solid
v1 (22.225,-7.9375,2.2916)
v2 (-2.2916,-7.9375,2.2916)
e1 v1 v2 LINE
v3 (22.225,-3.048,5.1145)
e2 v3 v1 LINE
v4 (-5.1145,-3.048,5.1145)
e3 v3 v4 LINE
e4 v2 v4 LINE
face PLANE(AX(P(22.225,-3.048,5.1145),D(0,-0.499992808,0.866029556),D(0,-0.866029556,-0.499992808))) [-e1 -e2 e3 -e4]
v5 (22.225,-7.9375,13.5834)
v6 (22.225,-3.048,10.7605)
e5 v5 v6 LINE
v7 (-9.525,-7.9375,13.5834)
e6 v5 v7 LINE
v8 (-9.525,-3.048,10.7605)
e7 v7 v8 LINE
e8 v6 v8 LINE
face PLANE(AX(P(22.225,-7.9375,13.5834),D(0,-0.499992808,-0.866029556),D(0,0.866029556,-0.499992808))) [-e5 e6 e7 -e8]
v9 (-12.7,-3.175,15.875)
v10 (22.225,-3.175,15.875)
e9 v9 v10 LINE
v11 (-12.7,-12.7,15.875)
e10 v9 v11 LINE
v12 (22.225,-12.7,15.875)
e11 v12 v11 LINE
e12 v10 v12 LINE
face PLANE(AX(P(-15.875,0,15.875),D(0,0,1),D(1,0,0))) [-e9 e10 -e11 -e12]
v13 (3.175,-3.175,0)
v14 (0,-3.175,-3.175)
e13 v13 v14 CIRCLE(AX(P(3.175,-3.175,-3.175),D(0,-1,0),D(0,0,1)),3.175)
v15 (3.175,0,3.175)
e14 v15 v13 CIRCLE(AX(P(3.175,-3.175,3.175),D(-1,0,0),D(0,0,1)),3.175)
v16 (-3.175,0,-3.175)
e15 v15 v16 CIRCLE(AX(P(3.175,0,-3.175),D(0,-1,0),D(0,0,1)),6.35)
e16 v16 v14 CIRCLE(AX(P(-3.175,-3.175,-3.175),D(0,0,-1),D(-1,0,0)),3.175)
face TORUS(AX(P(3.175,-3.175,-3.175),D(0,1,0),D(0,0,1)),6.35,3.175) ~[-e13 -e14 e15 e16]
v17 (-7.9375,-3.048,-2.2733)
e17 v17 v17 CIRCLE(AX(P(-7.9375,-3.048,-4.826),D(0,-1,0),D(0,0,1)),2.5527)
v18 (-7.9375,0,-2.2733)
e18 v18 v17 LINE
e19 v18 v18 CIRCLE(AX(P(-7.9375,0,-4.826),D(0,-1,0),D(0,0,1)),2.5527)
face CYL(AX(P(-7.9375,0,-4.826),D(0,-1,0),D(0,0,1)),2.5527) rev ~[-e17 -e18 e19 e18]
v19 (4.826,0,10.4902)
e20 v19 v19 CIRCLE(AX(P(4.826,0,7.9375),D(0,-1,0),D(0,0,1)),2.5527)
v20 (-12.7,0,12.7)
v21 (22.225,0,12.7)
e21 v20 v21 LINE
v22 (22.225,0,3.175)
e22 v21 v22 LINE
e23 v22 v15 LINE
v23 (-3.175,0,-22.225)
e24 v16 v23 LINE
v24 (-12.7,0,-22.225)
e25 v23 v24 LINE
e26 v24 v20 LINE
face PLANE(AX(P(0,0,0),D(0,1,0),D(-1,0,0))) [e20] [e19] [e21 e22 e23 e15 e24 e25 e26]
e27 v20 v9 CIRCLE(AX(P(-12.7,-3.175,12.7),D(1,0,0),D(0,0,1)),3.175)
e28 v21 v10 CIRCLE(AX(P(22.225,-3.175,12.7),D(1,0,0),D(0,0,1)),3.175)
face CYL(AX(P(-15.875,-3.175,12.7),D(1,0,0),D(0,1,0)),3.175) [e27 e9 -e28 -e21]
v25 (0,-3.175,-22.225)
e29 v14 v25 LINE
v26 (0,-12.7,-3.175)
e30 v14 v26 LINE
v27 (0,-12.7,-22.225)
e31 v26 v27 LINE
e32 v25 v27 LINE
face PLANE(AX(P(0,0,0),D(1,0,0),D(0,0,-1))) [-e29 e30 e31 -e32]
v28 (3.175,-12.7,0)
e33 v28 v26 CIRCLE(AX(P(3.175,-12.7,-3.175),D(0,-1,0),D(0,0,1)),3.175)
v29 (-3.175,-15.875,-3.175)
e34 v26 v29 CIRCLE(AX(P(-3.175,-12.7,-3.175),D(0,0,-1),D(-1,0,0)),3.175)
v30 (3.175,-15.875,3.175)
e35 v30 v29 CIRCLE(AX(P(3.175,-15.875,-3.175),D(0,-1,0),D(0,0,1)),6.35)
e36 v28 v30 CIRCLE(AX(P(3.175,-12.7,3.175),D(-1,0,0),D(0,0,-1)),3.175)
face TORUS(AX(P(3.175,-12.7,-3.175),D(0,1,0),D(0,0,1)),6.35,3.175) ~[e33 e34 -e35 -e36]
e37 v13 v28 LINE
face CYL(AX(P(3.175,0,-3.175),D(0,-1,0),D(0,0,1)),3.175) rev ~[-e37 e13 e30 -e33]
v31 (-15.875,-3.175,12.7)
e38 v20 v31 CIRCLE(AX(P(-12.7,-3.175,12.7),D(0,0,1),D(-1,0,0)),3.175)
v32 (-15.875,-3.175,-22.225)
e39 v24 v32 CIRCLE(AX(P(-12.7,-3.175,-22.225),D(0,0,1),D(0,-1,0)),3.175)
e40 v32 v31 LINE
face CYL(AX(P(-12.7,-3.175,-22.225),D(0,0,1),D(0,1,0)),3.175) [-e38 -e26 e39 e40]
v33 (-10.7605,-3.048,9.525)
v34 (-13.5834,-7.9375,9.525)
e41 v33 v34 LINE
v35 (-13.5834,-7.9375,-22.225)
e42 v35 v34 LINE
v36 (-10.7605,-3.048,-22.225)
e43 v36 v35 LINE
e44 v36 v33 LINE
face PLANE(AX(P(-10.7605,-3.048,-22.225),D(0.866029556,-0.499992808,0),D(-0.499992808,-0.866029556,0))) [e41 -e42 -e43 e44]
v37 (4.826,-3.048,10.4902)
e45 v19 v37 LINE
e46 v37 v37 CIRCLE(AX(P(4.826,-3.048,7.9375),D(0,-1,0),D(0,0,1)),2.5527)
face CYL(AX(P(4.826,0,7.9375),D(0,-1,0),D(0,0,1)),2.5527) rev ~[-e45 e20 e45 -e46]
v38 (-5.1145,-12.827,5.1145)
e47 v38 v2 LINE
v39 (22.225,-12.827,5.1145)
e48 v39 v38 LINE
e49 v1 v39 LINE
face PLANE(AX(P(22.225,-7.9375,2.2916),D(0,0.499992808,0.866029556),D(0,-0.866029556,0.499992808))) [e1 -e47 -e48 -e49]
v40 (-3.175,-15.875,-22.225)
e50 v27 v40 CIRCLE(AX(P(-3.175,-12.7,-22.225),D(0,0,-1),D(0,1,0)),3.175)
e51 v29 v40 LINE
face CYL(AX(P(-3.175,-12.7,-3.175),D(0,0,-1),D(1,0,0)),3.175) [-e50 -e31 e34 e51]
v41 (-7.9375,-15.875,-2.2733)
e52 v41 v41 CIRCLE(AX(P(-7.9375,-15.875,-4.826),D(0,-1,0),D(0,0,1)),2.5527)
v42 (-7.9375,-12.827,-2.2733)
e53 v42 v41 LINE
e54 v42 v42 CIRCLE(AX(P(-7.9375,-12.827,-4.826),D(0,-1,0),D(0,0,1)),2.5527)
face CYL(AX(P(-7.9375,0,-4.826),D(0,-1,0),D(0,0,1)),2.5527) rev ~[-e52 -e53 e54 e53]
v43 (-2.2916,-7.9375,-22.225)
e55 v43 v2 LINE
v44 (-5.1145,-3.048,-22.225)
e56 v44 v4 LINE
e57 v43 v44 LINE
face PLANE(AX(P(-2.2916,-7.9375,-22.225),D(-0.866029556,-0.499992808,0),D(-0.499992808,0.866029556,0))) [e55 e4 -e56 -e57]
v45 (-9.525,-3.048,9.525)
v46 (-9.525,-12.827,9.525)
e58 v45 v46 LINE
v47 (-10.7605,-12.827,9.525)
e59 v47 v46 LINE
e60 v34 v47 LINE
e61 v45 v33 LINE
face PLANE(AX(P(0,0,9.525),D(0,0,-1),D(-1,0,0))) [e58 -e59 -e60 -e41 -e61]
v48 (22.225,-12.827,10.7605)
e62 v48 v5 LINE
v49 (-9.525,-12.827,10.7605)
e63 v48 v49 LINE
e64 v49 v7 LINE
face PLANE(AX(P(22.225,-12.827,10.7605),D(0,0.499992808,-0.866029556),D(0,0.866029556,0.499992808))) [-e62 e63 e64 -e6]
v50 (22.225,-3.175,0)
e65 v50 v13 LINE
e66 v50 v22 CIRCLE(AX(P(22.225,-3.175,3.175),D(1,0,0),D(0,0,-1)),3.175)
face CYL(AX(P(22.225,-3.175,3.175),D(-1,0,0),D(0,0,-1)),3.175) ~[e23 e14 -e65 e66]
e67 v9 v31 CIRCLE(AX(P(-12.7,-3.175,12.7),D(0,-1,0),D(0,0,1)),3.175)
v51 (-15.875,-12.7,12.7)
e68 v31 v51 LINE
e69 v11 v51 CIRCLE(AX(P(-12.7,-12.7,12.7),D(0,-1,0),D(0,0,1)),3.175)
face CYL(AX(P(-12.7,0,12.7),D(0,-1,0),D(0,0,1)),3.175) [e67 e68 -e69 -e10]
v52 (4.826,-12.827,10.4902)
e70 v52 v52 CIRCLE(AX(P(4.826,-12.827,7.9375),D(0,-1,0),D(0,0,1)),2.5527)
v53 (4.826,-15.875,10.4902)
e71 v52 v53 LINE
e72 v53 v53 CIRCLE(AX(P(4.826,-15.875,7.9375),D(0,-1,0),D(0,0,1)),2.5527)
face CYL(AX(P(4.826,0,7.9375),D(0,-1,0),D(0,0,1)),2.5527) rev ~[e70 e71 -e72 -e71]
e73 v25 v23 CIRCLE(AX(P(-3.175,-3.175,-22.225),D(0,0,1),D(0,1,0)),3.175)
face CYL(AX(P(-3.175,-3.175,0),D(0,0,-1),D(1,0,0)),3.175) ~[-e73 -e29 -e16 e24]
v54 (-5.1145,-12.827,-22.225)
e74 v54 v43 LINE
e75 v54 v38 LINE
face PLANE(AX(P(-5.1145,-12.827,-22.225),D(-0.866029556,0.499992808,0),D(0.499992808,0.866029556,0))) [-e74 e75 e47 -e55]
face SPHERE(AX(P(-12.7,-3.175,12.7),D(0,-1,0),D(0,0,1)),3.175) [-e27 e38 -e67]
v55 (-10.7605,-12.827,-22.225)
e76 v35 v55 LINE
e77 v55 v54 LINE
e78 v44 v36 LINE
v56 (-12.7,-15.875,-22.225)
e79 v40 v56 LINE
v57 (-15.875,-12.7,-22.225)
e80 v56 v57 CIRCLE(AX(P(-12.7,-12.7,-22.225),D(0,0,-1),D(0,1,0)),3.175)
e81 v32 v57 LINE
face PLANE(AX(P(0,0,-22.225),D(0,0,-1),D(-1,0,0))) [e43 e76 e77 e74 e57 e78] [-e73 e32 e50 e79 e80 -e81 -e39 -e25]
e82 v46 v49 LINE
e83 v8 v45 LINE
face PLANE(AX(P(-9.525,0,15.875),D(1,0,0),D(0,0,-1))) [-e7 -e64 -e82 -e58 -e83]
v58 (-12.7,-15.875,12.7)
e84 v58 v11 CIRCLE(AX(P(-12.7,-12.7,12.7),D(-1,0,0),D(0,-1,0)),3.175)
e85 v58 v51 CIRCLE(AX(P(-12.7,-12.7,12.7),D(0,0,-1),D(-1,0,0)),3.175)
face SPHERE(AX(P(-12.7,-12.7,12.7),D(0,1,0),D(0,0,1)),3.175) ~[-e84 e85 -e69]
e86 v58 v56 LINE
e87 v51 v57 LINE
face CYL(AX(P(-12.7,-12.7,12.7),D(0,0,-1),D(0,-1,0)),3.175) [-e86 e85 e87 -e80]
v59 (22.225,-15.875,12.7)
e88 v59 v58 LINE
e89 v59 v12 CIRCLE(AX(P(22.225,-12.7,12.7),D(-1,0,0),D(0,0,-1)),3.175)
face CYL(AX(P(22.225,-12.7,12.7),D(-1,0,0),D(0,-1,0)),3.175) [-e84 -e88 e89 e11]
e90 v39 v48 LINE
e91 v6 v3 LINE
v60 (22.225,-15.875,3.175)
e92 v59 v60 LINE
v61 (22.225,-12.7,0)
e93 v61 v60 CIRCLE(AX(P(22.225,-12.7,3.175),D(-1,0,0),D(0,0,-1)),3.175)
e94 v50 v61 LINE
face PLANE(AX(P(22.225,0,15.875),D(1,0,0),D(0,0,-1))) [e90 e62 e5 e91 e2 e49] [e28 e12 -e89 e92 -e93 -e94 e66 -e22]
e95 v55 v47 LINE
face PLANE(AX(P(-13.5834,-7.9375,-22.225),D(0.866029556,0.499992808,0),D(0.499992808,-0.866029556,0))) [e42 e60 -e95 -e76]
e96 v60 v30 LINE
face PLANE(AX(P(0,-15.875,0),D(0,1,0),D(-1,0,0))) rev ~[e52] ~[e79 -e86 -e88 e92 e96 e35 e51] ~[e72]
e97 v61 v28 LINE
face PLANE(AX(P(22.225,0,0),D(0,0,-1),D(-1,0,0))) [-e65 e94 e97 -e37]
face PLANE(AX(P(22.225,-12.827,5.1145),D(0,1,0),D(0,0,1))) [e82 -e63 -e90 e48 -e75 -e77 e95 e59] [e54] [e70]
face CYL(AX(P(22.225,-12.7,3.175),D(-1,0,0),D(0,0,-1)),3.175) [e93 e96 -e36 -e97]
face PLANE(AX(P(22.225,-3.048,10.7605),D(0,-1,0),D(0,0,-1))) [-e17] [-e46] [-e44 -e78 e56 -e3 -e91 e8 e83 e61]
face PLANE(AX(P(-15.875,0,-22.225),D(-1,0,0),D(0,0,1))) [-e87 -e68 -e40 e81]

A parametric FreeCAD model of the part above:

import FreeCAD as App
import Part
import Sketcher

V = App.Vector
Q = App.Units.Quantity


def edges_at(feature, points):
    """Names of the edges that pass closest to the given points."""
    edges = feature.Shape.Edges
    near = lambda p: min(range(len(edges)), key=lambda i: edges[i].distToShape(Part.Vertex(*p))[0])
    return sorted({f"Edge{near(p) + 1}" for p in points})


def add_polygon(sketch, points):
    """Adds a closed chain of lines whose ends are joined by coincident constraints."""
    first, n = sketch.GeometryCount, len(points)
    for a, b in zip(points, points[1:] + points[:1]):
        sketch.addGeometry(Part.LineSegment(App.Vector(*a, 0), App.Vector(*b, 0)), False)
    for i in range(n):
        sketch.addConstraint(Sketcher.Constraint("Coincident", first + i, 2, first + (i + 1) % n, 1))

doc = App.newDocument("Part")
body = doc.addObject("PartDesign::Body", "Body")

# Sketch on XZ plane
sketch1 = doc.addObject("Sketcher::SketchObject", "Sketch")
body.addObject(sketch1)
sketch1.AttachmentSupport = (doc.XZ_Plane, [""])
sketch1.MapMode = "FlatFace"
add_polygon(sketch1, [(22.225, 0), (0, 0), (0, -22.225), (-15.875, -22.225), (-15.875, 15.875), (22.225, 15.875)])  # lines 0-5
sketch1.addConstraint(Sketcher.Constraint("Horizontal", 0))
sketch1.addConstraint(Sketcher.Constraint("Vertical", 1))
sketch1.addConstraint(Sketcher.Constraint("Horizontal", 2))
sketch1.addConstraint(Sketcher.Constraint("Vertical", 3))
sketch1.addConstraint(Sketcher.Constraint("Horizontal", 4))
sketch1.addConstraint(Sketcher.Constraint("Vertical", 5))
sketch1.addConstraint(Sketcher.Constraint("Coincident", 0, 2, -1, 1))
sketch1.addConstraint(Sketcher.Constraint("Equal", 0, 1))
sketch1.addConstraint(Sketcher.Constraint("Equal", 4, 3))
sketch1.addConstraint(Sketcher.Constraint("DistanceX", 4, 1, 4, 2, Q("1.5 in")))
sketch1.addConstraint(Sketcher.Constraint("DistanceX", 2, 2, 2, 1, Q("0.625 in")))
pad1 = doc.addObject("PartDesign::Pad", "Pad")
body.addObject(pad1)
pad1.Profile = sketch1
pad1.Length = Q("0.625 in")

# Sketch on XY plane
sketch2 = doc.addObject("Sketcher::SketchObject", "Sketch001")
body.addObject(sketch2)
sketch2.AttachmentSupport = (doc.XY_Plane, [""])
sketch2.MapMode = "FlatFace"
sketch2.AttachmentOffset = App.Placement(V(0, 0, -0.875 * 25.4), App.Rotation())
add_polygon(sketch2, [(-10.7605, -3.048), (-5.1145, -3.048), (-2.2916, -7.9375), (-5.1145, -12.827), (-10.7605, -12.827), (-13.5834, -7.9375)])  # lines 0-5
sketch2.addConstraint(Sketcher.Constraint("Horizontal", 0))
sketch2.addConstraint(Sketcher.Constraint("Horizontal", 3))
sketch2.addConstraint(Sketcher.Constraint("Parallel", 1, 4))
sketch2.addConstraint(Sketcher.Constraint("Parallel", 2, 5))
sketch2.addConstraint(Sketcher.Constraint("Horizontal", 1, 2, 4, 2))
sketch2.addConstraint(Sketcher.Constraint("Vertical", 0, 2, 2, 2))
sketch2.addConstraint(Sketcher.Constraint("Vertical", 3, 2, 5, 2))
sketch2.addConstraint(Sketcher.Constraint("DistanceY", 1, 2, -1, 1, Q("0.3125 in")))
sketch2.addConstraint(Sketcher.Constraint("Angle", 1, Q("-60.0005 deg")))
sketch2.addConstraint(Sketcher.Constraint("DistanceY", 2, 2, 0, 2, Q("0.385 in")))
sketch2.addConstraint(Sketcher.Constraint("DistanceX", 0, 1, 0, 2, Q("5.646 mm")))
sketch2.addConstraint(Sketcher.Constraint("DistanceX", 0, 2, -1, 1, Q("5.1145 mm")))
pocket1 = doc.addObject("PartDesign::Pocket", "Pocket")
body.addObject(pocket1)
pocket1.Profile = sketch2
pocket1.Length = Q("1.25 in")
pocket1.Reversed = True

# Sketch on YZ plane
sketch3 = doc.addObject("Sketcher::SketchObject", "Sketch002")
body.addObject(sketch3)
sketch3.AttachmentSupport = (doc.YZ_Plane, [""])
sketch3.MapMode = "FlatFace"
sketch3.AttachmentOffset = App.Placement(V(0, 0, 0.875 * 25.4), App.Rotation())
add_polygon(sketch3, [(-12.827, 5.1145), (-7.9375, 2.2916), (-3.048, 5.1145), (-3.048, 10.7605), (-7.9375, 13.5834), (-12.827, 10.7605)])  # lines 0-5
sketch3.addConstraint(Sketcher.Constraint("Vertical", 2))
sketch3.addConstraint(Sketcher.Constraint("Vertical", 5))
sketch3.addConstraint(Sketcher.Constraint("Parallel", 0, 3))
sketch3.addConstraint(Sketcher.Constraint("Parallel", 1, 4))
sketch3.addConstraint(Sketcher.Constraint("Horizontal", 2, 2, 4, 2))
sketch3.addConstraint(Sketcher.Constraint("Horizontal", 1, 2, 5, 2))
sketch3.addConstraint(Sketcher.Constraint("Vertical", 0, 2, 3, 2))
sketch3.addConstraint(Sketcher.Constraint("DistanceX", 0, 2, -1, 1, Q("0.3125 in")))
sketch3.addConstraint(Sketcher.Constraint("Angle", 0, Q("-29.9995 deg")))
sketch3.addConstraint(Sketcher.Constraint("DistanceX", 4, 2, 2, 2, Q("0.385 in")))
sketch3.addConstraint(Sketcher.Constraint("DistanceY", 2, 1, 2, 2, Q("5.646 mm")))
sketch3.addConstraint(Sketcher.Constraint("DistanceY", -1, 1, 0, 2, Q("2.2916 mm")))
pocket2 = doc.addObject("PartDesign::Pocket", "Pocket001")
body.addObject(pocket2)
pocket2.Profile = sketch3
pocket2.Length = Q("1.25 in")

# Sketch on XZ plane
sketch4 = doc.addObject("Sketcher::SketchObject", "Sketch003")
body.addObject(sketch4)
sketch4.AttachmentSupport = (doc.XZ_Plane, [""])
sketch4.MapMode = "FlatFace"
sketch4.addGeometry(Part.Circle(V(-7.9375, -4.826, 0), V(0, 0, 1), 2.5527), False)
sketch4.addGeometry(Part.Circle(V(4.826, 7.9375, 0), V(0, 0, 1), 2.5527), False)
sketch4.addConstraint(Sketcher.Constraint("Equal", 0, 1))
sketch4.addConstraint(Sketcher.Constraint("Diameter", 0, Q("0.201 in")))
sketch4.addConstraint(Sketcher.Constraint("DistanceY", 0, 3, -1, 1, Q("0.19 in")))
sketch4.addConstraint(Sketcher.Constraint("DistanceX", -1, 1, 1, 3, Q("0.19 in")))
sketch4.addConstraint(Sketcher.Constraint("DistanceX", 0, 3, -1, 1, Q("0.3125 in")))
sketch4.addConstraint(Sketcher.Constraint("DistanceY", -1, 1, 1, 3, Q("0.3125 in")))
doc.recompute()
hole = doc.addObject("PartDesign::Hole", "Hole")
body.addObject(hole)
hole.Profile = sketch4
hole.ThreadType = "None"
hole.Diameter = Q("0.201 in")
hole.DepthType = "ThroughAll"
hole.Reversed = True
doc.recompute()

fillet = doc.addObject("PartDesign::Fillet", "Fillet")
body.addObject(fillet)
fillet.Base = (hole, edges_at(hole, [
    (-15.875, -7.938, 15.875),
    (0, -7.938, 0),
    (11.113, 0, 0),
    (0, 0, -11.113),
    (3.175, 0, 15.875),
    (-15.875, 0, -3.175),
]))
fillet.Radius = Q("0.125 in")
doc.recompute()

fillet2 = doc.addObject("PartDesign::Fillet", "Fillet001")
body.addObject(fillet2)
fillet2.Base = (fillet, edges_at(fillet, [
    (-14.945, -15.875, 14.945),
    (4.763, -15.875, 15.875),
    (-15.875, -15.875, -4.763),
    (12.7, -15.875, 0),
    (0, -15.875, -12.7),
]))
fillet2.Radius = Q("0.125 in")

doc.recompute()
